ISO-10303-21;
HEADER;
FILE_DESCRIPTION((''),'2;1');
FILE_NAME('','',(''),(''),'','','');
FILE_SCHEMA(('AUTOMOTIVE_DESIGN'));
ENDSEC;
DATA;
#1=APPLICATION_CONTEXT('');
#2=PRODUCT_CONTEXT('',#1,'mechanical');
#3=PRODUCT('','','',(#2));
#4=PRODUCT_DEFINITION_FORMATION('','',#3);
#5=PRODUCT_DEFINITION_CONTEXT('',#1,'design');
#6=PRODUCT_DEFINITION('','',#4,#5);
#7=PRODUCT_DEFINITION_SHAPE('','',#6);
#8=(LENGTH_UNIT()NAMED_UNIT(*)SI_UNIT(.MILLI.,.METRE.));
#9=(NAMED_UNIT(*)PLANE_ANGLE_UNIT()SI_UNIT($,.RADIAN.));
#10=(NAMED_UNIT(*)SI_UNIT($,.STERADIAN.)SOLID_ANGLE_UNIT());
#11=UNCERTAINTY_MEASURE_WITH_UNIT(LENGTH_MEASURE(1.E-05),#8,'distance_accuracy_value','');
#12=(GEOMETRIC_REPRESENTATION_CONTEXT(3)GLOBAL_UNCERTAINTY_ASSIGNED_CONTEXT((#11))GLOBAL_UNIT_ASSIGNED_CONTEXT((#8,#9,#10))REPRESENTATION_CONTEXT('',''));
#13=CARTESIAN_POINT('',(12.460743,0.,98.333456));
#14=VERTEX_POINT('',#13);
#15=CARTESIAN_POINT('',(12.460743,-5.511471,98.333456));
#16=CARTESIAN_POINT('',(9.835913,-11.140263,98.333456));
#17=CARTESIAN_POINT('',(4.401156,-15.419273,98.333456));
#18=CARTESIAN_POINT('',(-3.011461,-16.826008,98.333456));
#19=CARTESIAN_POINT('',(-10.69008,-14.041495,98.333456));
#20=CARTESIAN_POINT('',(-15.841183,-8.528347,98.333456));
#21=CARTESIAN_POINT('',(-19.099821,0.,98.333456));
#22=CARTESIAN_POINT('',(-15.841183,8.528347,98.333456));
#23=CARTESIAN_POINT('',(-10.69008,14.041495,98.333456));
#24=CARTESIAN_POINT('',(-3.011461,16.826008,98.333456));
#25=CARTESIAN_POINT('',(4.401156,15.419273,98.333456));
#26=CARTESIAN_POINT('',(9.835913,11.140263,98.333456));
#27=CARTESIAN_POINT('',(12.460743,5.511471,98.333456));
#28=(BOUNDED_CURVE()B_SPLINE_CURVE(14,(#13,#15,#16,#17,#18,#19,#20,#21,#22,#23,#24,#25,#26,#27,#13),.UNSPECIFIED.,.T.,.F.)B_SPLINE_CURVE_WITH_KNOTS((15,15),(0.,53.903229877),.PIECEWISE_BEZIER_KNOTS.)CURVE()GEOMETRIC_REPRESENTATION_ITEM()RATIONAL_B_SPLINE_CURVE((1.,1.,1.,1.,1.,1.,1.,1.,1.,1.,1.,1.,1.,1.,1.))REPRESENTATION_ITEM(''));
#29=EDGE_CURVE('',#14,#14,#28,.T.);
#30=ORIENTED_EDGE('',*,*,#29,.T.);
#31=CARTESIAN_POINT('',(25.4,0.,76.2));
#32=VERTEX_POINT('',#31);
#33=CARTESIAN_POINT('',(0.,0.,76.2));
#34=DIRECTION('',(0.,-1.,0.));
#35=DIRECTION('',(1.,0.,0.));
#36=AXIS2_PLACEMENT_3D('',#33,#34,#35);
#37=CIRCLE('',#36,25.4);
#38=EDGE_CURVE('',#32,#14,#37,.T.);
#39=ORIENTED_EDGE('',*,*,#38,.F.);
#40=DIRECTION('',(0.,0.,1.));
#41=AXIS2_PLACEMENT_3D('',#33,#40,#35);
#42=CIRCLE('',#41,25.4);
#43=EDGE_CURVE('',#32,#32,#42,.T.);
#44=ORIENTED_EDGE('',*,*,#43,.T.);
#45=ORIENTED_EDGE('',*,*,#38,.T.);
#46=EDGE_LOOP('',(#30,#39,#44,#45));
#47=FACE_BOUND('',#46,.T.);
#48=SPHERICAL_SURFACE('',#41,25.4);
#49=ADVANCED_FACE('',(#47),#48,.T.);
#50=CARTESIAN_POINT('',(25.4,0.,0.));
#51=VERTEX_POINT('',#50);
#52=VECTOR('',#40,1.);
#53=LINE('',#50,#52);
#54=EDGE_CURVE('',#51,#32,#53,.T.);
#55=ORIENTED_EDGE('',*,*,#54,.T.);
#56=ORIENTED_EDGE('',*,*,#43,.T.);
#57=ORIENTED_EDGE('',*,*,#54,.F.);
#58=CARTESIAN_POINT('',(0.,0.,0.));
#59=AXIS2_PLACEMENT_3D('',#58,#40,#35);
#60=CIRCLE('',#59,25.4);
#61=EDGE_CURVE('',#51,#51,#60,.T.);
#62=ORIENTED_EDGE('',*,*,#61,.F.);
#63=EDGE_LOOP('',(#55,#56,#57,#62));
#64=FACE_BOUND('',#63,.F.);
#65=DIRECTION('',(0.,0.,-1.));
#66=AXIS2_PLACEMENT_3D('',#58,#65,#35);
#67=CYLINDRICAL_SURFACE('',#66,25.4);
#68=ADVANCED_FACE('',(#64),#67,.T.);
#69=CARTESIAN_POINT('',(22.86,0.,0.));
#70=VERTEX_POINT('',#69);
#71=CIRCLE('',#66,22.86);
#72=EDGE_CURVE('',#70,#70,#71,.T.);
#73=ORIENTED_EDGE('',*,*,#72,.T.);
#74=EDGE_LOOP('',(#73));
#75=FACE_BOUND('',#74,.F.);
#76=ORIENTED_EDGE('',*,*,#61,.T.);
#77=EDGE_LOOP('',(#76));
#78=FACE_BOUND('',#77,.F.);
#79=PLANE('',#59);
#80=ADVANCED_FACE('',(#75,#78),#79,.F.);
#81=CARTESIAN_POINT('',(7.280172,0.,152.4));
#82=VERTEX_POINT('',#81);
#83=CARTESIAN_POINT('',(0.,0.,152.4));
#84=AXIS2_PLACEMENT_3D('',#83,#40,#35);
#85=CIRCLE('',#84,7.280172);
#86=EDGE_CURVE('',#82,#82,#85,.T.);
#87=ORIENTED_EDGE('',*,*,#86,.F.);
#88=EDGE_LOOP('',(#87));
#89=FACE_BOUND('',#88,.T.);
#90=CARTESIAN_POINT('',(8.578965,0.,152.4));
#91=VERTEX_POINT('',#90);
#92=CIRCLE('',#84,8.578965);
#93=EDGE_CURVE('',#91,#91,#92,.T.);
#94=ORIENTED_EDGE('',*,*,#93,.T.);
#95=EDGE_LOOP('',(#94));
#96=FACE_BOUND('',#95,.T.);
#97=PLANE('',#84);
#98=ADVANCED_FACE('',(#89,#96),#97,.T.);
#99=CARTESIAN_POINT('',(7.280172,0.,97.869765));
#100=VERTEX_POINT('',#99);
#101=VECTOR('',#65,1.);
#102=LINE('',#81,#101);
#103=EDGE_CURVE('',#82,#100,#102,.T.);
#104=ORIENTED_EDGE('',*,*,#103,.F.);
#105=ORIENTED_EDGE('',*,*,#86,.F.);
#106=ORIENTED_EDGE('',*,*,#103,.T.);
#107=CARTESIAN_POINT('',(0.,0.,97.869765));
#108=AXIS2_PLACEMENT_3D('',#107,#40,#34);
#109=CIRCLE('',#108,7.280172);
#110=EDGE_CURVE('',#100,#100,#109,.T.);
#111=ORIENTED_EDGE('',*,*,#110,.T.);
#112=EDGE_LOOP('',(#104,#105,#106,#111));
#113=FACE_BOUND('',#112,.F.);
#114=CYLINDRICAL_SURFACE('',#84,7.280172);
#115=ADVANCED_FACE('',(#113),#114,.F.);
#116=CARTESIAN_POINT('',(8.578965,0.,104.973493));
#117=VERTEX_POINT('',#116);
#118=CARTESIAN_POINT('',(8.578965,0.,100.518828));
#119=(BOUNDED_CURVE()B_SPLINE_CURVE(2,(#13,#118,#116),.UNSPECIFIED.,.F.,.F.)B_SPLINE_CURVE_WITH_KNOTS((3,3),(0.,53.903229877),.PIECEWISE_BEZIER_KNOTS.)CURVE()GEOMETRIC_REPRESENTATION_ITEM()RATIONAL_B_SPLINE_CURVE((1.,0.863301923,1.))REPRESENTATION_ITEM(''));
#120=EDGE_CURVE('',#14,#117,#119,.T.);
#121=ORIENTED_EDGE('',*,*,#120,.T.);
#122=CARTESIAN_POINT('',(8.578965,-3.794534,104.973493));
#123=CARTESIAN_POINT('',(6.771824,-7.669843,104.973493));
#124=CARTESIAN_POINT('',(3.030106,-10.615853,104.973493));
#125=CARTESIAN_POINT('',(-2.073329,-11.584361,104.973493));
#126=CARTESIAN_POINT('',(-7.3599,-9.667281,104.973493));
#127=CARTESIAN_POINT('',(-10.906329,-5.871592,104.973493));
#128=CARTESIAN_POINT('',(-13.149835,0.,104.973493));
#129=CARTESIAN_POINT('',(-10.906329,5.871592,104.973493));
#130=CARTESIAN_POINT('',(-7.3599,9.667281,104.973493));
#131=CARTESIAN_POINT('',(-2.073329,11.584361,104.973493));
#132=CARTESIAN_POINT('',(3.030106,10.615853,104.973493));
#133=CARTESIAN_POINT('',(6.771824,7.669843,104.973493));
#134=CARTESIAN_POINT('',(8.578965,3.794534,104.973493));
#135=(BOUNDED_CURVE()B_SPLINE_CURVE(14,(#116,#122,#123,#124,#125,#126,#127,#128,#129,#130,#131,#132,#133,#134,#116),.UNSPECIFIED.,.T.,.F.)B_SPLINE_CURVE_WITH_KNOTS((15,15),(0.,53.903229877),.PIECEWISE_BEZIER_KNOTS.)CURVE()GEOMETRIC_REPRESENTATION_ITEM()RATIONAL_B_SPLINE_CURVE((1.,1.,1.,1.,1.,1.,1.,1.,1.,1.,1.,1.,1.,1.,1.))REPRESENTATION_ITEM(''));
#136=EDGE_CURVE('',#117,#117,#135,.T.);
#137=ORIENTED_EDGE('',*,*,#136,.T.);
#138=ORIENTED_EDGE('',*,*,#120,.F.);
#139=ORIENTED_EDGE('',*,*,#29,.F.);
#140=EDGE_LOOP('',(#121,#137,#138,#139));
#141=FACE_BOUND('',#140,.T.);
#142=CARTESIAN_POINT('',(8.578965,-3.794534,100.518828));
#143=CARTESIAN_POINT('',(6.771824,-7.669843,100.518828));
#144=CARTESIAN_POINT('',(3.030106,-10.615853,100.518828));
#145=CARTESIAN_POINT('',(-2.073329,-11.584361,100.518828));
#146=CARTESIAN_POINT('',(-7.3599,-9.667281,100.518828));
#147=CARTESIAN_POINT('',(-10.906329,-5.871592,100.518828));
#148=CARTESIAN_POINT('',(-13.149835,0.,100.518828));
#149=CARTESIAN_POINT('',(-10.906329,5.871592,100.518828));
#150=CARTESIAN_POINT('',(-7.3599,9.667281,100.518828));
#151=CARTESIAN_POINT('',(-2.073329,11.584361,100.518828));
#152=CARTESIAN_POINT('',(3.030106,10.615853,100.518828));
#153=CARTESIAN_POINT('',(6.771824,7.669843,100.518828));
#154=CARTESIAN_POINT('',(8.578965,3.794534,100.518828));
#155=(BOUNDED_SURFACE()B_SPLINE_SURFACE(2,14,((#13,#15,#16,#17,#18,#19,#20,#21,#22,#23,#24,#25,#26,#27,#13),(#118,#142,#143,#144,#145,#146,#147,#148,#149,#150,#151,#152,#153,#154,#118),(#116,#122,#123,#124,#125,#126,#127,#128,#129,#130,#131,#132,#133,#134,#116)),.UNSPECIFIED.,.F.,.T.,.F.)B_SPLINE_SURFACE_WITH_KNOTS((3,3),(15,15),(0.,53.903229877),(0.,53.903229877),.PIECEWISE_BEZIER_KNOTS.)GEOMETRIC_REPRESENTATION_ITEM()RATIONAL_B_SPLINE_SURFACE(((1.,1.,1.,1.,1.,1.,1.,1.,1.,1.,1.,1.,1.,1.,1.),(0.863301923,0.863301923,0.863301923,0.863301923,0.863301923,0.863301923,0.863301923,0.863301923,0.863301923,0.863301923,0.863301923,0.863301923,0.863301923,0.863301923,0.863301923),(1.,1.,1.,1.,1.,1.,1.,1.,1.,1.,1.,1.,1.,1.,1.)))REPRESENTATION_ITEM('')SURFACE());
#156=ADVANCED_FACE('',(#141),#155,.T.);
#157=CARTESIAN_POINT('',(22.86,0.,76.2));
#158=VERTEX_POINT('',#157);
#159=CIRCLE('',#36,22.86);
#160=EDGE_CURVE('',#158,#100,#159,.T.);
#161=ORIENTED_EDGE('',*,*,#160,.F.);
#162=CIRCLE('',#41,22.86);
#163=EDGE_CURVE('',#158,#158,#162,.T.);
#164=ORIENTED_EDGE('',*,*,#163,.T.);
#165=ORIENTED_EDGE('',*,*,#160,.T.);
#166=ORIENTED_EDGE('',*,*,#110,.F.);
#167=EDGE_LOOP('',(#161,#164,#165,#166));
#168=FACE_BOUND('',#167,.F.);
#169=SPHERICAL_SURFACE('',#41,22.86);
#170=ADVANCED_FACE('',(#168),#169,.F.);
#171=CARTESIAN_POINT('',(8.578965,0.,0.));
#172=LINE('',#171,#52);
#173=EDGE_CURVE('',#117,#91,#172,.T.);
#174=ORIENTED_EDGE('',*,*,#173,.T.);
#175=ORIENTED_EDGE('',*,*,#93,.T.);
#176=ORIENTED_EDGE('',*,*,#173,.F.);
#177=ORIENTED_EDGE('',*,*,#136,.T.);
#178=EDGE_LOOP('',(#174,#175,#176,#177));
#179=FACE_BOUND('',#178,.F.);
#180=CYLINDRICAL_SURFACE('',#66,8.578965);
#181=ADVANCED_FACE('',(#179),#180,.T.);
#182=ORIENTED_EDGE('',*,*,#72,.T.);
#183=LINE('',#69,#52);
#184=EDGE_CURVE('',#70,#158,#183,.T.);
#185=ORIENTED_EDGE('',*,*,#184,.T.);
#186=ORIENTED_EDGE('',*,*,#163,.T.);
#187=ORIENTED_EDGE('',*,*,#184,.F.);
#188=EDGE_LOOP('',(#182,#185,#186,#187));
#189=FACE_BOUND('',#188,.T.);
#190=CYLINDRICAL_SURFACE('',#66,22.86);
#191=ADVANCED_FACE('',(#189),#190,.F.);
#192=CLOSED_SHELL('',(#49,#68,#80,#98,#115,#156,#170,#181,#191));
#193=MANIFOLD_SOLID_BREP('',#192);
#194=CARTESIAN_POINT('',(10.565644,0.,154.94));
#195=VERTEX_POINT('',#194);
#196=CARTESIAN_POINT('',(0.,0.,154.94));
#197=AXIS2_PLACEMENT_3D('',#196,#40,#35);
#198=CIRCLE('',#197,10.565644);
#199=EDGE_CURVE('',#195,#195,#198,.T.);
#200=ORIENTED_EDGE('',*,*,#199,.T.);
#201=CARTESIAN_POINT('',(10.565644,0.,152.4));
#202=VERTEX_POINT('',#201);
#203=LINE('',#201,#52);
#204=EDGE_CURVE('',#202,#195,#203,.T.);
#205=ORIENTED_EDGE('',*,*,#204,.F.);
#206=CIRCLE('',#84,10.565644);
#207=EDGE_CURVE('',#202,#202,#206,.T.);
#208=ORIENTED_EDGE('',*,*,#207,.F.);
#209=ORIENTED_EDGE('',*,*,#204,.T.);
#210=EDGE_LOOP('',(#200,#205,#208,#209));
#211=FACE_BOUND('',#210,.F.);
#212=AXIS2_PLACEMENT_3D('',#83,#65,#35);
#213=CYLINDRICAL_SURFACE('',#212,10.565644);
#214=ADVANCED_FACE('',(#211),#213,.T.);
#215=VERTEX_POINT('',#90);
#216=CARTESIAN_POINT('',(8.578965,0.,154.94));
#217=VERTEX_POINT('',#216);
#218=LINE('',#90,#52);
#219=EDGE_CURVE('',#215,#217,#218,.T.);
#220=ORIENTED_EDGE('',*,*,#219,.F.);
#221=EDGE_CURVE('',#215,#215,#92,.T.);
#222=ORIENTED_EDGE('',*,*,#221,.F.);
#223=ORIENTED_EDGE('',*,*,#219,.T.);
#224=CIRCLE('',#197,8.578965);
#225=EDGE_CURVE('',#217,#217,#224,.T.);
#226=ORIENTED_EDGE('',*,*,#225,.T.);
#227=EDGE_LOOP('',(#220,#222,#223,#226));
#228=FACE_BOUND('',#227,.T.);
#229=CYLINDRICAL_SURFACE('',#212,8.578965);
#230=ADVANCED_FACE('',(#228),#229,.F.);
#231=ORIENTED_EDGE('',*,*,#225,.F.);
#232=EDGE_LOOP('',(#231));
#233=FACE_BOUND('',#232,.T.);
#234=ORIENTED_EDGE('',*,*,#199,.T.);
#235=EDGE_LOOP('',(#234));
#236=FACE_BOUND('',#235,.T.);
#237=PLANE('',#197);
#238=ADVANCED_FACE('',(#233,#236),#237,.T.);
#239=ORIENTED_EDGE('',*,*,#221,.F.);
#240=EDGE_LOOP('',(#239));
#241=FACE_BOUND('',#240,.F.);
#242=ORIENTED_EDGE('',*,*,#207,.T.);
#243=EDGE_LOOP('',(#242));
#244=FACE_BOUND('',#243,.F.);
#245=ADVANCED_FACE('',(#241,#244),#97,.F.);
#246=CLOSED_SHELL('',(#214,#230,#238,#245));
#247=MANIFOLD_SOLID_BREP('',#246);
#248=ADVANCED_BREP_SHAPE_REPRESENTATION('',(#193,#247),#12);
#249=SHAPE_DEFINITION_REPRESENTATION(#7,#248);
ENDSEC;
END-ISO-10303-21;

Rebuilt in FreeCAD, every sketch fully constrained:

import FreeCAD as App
import Part
import Sketcher

V = App.Vector
Q = App.Units.Quantity


def edges_at(feature, points):
    """Names of the edges that pass closest to the given points."""
    edges = feature.Shape.Edges
    near = lambda p: min(range(len(edges)), key=lambda i: edges[i].distToShape(Part.Vertex(*p))[0])
    return sorted({f"Edge{near(p) + 1}" for p in points})


def faces_at(feature, points):
    """Names of the faces that lie closest to the given points."""
    faces = feature.Shape.Faces
    near = lambda p: min(range(len(faces)), key=lambda i: faces[i].distToShape(Part.Vertex(*p))[0])
    return sorted({f"Face{near(p) + 1}" for p in points})

doc = App.newDocument("Part")
params = doc.addObject("Spreadsheet::Sheet", "Params")
for row, (alias, value) in enumerate([
    ("sketch1_diameter", "2 in"),
    ("pad1_length", "4 in"),
    ("fillet_radius", "1 in"),
    ("pad2_length", "6 in"),
    ("thickness_wall", "0.1 in"),
    ("fillet2_radius", "0.3 in"),
    ("pocket1_length", "3 in"),
    ("pad3_length", "0.1 in"),
], start=1):
    params.set(f"A{row}", alias)
    params.set(f"B{row}", "=" + value)
    params.setAlias(f"B{row}", alias)

body = doc.addObject("PartDesign::Body", "Body")

# Sketch on XY plane
sketch1 = body.newObject("Sketcher::SketchObject", "Sketch")
sketch1.AttachmentSupport = (doc.getObject("XY_Plane"), [""])
sketch1.MapMode = "FlatFace"
sketch1.addGeometry(Part.Circle(V(0, 0, 0), V(0, 0, 1), 25), False)
sketch1.addConstraint(Sketcher.Constraint("Coincident", 0, 3, -1, 1))
sketch1.addConstraint(Sketcher.Constraint("Diameter", 0, Q("2 in")))
sketch1.setExpression("Constraints[1]", "Params.sketch1_diameter")
pad1 = body.newObject("PartDesign::Pad", "Pad")
pad1.Profile = sketch1
pad1.setExpression("Length", "Params.pad1_length")
doc.recompute()

fillet = body.newObject("PartDesign::Fillet", "Fillet")
fillet.Base = (pad1, edges_at(pad1, [(-25.4, 0, 101.6)]))
fillet.setExpression("Radius", "Params.fillet_radius")

# Sketch on XY plane
sketch2 = body.newObject("Sketcher::SketchObject", "Sketch001")
sketch2.AttachmentSupport = (doc.getObject("XY_Plane"), [""])
sketch2.MapMode = "FlatFace"
sketch2.addGeometry(Part.Circle(V(0, 0, 0), V(0, 0, 1), 9), False)
sketch2.addConstraint(Sketcher.Constraint("Coincident", 0, 3, -1, 1))
sketch2.addConstraint(Sketcher.Constraint("Diameter", 0, 17.157931))
pad2 = body.newObject("PartDesign::Pad", "Pad001")
pad2.Profile = sketch2
pad2.setExpression("Length", "Params.pad2_length")
doc.recompute()

thickness = body.newObject("PartDesign::Thickness", "Thickness")
thickness.Base = (pad2, faces_at(pad2, [(0, 0, 0)]))
thickness.setExpression("Value", "Params.thickness_wall")
thickness.Reversed = True
thickness.Join = "Intersection"
doc.recompute()

fillet2 = body.newObject("PartDesign::Fillet", "Fillet001")
fillet2.Base = (thickness, edges_at(thickness, [(-8.579, 0, 100.107)]))
fillet2.setExpression("Radius", "Params.fillet2_radius")

# Sketch on XY plane
sketch3 = body.newObject("Sketcher::SketchObject", "Sketch002")
sketch3.AttachmentSupport = (doc.getObject("XY_Plane"), [""])
sketch3.MapMode = "FlatFace"
sketch3.AttachmentOffset = App.Placement(V(0, 0, 6 * 25.4), App.Rotation())
sketch3.addGeometry(Part.Circle(V(0, 0, 0), V(0, 0, 1), 7), False)
sketch3.addConstraint(Sketcher.Constraint("Coincident", 0, 3, -1, 1))
sketch3.addConstraint(Sketcher.Constraint("Diameter", 0, 14.560343))
pocket1 = body.newObject("PartDesign::Pocket", "Pocket")
pocket1.Profile = sketch3
pocket1.setExpression("Length", "Params.pocket1_length")
body2 = doc.addObject("PartDesign::Body", "Body001")

# Sketch on XY plane
sketch4 = body2.newObject("Sketcher::SketchObject", "Sketch003")
sketch4.AttachmentSupport = (doc.getObject("XY_Plane001"), [""])
sketch4.MapMode = "FlatFace"
sketch4.AttachmentOffset = App.Placement(V(0, 0, 6 * 25.4), App.Rotation())
sketch4.addGeometry(Part.Circle(V(0, 0, 0), V(0, 0, 1), 11), False)
sketch4.addGeometry(Part.Circle(V(0, 0, 0), V(0, 0, 1), 9), False)
sketch4.addConstraint(Sketcher.Constraint("Coincident", 0, 3, -1, 1))
sketch4.addConstraint(Sketcher.Constraint("Coincident", 1, 3, -1, 1))
sketch4.addConstraint(Sketcher.Constraint("Diameter", 0, 21.131288))
sketch4.addConstraint(Sketcher.Constraint("Diameter", 1, 17.157931))
pad3 = body2.newObject("PartDesign::Pad", "Pad002")
pad3.Profile = sketch4
pad3.setExpression("Length", "Params.pad3_length")

doc.recompute()
